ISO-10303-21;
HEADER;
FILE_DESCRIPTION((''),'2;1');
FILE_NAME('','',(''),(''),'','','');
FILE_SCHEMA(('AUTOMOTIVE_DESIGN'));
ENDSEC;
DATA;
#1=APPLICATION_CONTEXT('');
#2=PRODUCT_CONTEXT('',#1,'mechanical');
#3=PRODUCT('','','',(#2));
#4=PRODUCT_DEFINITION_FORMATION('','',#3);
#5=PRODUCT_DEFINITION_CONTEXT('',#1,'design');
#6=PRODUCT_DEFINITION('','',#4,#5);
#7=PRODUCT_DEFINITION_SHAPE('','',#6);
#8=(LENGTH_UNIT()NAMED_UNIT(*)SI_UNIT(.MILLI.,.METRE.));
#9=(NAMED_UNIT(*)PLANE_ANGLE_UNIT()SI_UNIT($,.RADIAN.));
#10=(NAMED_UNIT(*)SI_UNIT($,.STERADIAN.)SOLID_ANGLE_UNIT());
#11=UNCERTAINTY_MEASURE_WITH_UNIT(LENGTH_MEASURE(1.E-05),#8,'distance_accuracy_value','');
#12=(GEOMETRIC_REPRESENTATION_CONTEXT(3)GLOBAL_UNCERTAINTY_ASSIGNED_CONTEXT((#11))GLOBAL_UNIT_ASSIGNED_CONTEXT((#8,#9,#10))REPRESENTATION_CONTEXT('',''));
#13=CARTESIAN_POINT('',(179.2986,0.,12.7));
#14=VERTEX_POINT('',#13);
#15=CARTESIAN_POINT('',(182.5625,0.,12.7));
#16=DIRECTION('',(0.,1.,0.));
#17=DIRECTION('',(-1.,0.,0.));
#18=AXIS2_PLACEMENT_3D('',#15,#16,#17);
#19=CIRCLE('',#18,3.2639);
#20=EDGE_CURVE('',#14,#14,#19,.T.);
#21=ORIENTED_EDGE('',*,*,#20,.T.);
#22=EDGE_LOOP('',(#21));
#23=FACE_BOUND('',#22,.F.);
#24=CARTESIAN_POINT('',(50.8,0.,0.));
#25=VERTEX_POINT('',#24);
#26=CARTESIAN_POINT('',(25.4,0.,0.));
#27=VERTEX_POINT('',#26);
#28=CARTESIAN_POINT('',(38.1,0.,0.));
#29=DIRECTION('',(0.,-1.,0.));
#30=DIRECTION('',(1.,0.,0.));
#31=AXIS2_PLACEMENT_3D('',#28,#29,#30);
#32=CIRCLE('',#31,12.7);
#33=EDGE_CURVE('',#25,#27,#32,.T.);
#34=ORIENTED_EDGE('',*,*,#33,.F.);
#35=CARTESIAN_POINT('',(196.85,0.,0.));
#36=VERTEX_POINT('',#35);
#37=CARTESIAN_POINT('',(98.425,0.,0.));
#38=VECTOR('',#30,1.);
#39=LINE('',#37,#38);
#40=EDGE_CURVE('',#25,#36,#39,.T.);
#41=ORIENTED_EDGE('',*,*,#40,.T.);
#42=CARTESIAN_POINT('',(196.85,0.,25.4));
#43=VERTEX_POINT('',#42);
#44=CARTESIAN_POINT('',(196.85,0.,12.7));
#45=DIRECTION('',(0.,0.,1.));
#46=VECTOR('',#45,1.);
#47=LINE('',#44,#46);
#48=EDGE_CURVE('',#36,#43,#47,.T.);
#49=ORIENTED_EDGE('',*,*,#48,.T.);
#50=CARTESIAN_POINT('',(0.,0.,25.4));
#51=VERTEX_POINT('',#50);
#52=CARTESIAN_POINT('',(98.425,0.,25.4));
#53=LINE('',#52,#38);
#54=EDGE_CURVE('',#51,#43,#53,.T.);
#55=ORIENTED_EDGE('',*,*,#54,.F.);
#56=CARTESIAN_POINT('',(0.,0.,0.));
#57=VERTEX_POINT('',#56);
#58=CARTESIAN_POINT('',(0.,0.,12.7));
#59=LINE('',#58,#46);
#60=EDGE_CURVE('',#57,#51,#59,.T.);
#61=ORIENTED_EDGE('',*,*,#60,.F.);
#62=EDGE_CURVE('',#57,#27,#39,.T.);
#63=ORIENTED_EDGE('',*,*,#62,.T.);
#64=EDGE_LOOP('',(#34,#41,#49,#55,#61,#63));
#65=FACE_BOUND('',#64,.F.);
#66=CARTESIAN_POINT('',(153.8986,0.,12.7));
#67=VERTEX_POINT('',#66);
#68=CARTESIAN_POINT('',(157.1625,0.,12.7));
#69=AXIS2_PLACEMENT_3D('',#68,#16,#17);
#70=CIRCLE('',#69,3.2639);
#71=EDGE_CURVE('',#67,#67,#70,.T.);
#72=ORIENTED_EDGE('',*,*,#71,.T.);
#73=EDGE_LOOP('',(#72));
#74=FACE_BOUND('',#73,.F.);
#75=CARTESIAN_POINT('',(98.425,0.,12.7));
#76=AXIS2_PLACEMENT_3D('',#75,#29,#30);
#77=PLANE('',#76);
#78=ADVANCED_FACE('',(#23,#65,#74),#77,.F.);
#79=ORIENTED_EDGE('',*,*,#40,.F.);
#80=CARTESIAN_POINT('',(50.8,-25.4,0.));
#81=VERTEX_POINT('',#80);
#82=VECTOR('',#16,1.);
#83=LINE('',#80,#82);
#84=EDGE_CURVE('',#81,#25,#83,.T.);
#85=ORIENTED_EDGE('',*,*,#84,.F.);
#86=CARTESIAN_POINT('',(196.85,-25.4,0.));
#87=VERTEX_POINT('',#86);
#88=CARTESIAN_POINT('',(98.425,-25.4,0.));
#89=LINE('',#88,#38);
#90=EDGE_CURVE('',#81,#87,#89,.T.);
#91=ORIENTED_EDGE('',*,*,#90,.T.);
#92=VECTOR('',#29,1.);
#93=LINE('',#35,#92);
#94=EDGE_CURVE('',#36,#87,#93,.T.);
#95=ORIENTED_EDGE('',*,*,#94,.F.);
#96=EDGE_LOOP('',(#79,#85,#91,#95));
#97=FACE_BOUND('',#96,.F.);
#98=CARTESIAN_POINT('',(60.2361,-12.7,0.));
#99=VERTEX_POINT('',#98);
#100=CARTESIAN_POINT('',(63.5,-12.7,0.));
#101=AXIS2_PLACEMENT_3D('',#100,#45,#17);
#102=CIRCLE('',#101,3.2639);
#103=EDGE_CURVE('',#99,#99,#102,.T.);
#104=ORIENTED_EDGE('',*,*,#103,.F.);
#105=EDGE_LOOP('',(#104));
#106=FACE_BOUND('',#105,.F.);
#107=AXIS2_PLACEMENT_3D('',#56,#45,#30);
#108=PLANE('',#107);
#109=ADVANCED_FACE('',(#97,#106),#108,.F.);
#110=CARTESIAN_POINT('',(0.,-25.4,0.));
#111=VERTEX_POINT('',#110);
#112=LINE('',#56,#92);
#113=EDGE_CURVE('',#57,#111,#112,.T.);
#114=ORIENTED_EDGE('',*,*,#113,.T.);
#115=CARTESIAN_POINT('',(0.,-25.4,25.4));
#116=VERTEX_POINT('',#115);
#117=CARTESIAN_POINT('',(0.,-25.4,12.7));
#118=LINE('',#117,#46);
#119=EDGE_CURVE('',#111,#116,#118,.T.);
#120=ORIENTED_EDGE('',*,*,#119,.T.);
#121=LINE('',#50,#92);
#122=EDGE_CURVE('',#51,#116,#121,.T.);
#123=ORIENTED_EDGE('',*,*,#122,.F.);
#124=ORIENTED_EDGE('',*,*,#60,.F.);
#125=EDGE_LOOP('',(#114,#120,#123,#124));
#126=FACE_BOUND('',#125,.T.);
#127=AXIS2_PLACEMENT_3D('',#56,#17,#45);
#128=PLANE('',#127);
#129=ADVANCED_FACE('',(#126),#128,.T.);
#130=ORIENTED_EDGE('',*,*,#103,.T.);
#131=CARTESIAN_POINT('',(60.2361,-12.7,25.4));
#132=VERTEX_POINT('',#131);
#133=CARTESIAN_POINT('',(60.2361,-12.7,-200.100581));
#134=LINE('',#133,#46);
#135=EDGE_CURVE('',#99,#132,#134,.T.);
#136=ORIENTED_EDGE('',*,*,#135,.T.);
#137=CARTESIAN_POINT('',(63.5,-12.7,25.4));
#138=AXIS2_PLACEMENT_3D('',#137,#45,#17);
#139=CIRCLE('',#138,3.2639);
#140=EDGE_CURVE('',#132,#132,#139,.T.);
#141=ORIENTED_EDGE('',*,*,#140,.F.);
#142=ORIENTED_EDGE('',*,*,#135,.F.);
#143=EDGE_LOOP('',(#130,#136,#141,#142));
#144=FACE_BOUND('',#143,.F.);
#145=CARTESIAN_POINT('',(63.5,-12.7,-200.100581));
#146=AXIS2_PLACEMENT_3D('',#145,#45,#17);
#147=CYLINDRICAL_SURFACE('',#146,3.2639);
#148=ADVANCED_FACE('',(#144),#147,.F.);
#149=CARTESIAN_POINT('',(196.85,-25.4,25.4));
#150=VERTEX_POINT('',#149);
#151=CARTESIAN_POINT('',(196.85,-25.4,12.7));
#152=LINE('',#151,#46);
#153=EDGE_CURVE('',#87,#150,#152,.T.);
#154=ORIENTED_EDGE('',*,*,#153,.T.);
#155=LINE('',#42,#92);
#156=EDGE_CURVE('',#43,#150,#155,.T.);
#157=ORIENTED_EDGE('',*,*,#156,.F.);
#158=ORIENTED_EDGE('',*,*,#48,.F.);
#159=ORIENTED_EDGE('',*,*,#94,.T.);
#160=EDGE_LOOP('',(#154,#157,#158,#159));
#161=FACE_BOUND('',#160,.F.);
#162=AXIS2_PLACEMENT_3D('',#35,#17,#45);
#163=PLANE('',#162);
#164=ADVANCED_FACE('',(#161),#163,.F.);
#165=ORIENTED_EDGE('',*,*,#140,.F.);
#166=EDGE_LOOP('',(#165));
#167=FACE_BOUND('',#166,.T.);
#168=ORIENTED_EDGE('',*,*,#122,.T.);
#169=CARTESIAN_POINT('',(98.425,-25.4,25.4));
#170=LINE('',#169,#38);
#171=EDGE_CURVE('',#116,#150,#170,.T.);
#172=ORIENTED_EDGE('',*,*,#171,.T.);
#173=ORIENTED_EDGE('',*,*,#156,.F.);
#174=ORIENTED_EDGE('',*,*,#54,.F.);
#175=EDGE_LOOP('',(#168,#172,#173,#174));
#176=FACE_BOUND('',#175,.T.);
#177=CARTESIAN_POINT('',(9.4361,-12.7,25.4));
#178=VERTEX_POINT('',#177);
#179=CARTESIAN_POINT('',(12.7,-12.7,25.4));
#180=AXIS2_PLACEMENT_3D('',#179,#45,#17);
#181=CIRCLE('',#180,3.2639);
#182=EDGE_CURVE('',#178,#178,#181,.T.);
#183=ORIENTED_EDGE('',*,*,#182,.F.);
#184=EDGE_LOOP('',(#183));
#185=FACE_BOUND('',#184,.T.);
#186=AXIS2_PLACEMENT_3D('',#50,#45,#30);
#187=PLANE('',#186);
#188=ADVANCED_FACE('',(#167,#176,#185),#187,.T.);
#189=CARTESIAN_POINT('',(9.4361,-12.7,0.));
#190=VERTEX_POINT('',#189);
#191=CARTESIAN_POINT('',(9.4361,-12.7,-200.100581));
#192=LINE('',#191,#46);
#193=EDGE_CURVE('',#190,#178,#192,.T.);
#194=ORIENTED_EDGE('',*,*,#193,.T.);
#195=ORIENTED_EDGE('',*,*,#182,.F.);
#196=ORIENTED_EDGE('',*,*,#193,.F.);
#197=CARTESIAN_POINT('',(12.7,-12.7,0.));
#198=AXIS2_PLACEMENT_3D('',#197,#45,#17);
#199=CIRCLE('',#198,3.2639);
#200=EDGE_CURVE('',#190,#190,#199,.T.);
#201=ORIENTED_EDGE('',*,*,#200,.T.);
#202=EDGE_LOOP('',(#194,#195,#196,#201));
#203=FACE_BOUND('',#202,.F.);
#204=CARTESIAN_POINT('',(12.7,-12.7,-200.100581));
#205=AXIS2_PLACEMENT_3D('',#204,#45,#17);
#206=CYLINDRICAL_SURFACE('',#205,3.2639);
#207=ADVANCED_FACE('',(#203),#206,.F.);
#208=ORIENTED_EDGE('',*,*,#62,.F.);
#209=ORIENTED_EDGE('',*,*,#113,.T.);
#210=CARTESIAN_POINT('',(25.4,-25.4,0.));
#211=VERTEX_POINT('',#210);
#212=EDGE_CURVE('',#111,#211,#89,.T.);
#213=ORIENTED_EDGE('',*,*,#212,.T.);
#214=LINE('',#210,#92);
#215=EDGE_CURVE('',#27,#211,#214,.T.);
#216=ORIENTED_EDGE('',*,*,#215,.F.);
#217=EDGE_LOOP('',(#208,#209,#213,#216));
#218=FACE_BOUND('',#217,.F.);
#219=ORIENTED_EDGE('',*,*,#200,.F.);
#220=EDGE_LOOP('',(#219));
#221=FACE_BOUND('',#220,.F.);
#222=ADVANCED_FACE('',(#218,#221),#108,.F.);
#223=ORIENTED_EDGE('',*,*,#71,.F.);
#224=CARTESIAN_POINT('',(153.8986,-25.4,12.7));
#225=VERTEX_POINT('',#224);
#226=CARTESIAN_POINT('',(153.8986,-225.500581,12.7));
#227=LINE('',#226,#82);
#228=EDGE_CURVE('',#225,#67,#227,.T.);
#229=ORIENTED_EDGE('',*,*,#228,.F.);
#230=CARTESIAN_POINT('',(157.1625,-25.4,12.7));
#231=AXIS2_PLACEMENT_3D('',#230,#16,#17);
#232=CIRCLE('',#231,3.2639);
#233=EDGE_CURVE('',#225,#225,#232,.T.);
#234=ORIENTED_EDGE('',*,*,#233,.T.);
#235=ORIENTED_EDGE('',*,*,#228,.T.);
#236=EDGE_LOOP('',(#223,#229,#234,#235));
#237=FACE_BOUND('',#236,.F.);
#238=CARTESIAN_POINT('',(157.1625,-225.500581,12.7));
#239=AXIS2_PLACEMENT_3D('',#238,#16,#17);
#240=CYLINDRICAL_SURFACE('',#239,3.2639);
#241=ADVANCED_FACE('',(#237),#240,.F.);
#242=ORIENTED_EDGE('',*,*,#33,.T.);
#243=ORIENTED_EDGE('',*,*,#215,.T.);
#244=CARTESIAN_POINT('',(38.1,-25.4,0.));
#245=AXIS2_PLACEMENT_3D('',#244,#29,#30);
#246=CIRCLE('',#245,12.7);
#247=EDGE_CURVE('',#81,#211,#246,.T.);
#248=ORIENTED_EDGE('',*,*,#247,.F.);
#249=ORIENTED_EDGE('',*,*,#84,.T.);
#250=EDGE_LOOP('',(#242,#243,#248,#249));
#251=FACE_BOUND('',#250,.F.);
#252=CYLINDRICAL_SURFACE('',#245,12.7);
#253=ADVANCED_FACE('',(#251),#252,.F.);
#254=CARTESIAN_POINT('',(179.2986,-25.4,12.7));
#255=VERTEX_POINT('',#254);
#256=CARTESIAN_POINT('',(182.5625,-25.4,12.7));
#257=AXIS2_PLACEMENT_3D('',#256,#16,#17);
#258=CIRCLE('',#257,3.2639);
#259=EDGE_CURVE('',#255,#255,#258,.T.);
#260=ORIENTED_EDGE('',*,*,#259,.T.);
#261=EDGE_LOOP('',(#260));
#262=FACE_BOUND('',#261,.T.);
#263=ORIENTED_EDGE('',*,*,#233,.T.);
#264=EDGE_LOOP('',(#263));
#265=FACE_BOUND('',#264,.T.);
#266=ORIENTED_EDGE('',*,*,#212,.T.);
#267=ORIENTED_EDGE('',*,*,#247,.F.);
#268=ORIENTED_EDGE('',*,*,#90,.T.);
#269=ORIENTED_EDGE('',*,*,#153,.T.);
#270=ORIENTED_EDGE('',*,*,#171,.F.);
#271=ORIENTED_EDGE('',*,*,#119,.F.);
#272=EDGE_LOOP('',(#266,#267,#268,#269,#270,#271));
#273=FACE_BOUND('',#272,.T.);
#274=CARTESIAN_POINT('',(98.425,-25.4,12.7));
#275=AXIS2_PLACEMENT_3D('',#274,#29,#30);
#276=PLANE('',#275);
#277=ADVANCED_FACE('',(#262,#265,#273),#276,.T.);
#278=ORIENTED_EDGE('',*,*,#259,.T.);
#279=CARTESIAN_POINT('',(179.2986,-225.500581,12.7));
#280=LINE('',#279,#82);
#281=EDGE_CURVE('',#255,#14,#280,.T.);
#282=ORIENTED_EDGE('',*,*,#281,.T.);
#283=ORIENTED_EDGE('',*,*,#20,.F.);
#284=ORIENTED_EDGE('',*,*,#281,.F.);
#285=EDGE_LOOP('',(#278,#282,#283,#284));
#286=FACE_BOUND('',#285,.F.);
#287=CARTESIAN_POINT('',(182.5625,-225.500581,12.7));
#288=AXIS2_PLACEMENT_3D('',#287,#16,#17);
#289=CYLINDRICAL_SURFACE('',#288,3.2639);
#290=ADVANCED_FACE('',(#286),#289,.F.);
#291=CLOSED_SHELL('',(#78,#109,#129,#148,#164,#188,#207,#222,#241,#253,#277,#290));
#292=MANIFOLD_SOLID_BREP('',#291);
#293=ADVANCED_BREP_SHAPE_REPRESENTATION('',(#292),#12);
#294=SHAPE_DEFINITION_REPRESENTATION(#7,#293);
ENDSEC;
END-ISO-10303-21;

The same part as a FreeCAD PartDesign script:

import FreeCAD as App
import Part
import Sketcher
from FreeCAD import Vector
Q = App.Units.Quantity

doc = App.newDocument("Part")
body = doc.addObject("PartDesign::Body", "Body")

sketch1 = body.newObject("Sketcher::SketchObject", "Sketch")
sketch1.AttachmentSupport = (doc.getObject("XZ_Plane"), [""])
sketch1.MapMode = "FlatFace"
sketch1.addGeometry(Part.LineSegment(Vector(0, 25, 0), Vector(0, 0, 0)), False)
sketch1.addGeometry(Part.LineSegment(Vector(0, 0, 0), Vector(197, 0, 0)), False)
sketch1.addGeometry(Part.LineSegment(Vector(197, 0, 0), Vector(197, 25, 0)), False)
sketch1.addGeometry(Part.LineSegment(Vector(197, 25, 0), Vector(0, 25, 0)), False)
sketch1.addConstraint(Sketcher.Constraint("Coincident", 0, 2, 1, 1))
sketch1.addConstraint(Sketcher.Constraint("Coincident", 1, 2, 2, 1))
sketch1.addConstraint(Sketcher.Constraint("Coincident", 2, 2, 3, 1))
sketch1.addConstraint(Sketcher.Constraint("Coincident", 3, 2, 0, 1))
sketch1.addConstraint(Sketcher.Constraint("Vertical", 0))
sketch1.addConstraint(Sketcher.Constraint("Horizontal", 1))
sketch1.addConstraint(Sketcher.Constraint("Vertical", 2))
sketch1.addConstraint(Sketcher.Constraint("Horizontal", 3))
sketch1.addConstraint(Sketcher.Constraint("Coincident", 0, 2, -1, 1))
sketch1.addConstraint(Sketcher.Constraint("DistanceY", 0, 2, 0, 1, Q("1 in")))
sketch1.addConstraint(Sketcher.Constraint("DistanceX", 1, 1, 1, 2, Q("7.75 in")))
pad1 = body.newObject("PartDesign::Pad", "Pad")
pad1.Profile = sketch1
pad1.Length = Q("1 in")

sketch2 = body.newObject("Sketcher::SketchObject", "Sketch001")
sketch2.AttachmentSupport = (doc.getObject("XZ_Plane"), [""])
sketch2.MapMode = "FlatFace"
sketch2.AttachmentOffset = App.Placement(Vector(0, 0, 1 * 25.4), App.Rotation())
sketch2.addGeometry(Part.Circle(Vector(38, 0, 0), Vector(0, 0, 1), 13), False)
sketch2.addConstraint(Sketcher.Constraint("PointOnObject", 0, 3, -1))
sketch2.addConstraint(Sketcher.Constraint("Diameter", 0, Q("1 in")))
sketch2.addConstraint(Sketcher.Constraint("DistanceX", -1, 1, 0, 3, Q("1.5 in")))
pocket1 = body.newObject("PartDesign::Pocket", "Pocket")
pocket1.Profile = sketch2
pocket1.Length = Q("1 in")

sketch3 = body.newObject("Sketcher::SketchObject", "Sketch002")
sketch3.AttachmentSupport = (doc.getObject("XZ_Plane"), [""])
sketch3.MapMode = "FlatFace"
sketch3.AttachmentOffset = App.Placement(Vector(0, 0, 1 * 25.4), App.Rotation())
sketch3.addGeometry(Part.Circle(Vector(157.2, 12.7, 0), Vector(0, 0, 1), 3.3), False)
sketch3.addGeometry(Part.Circle(Vector(182.6, 12.7, 0), Vector(0, 0, 1), 3.3), False)
sketch3.addConstraint(Sketcher.Constraint("Equal", 0, 1))
sketch3.addConstraint(Sketcher.Constraint("Horizontal", 0, 3, 1, 3))
sketch3.addConstraint(Sketcher.Constraint("Diameter", 0, Q("0.257 in")))
sketch3.addConstraint(Sketcher.Constraint("DistanceX", 0, 3, 1, 3, Q("1 in")))
sketch3.addConstraint(Sketcher.Constraint("DistanceY", -1, 1, 0, 3, Q("0.5 in")))
sketch3.addConstraint(Sketcher.Constraint("DistanceX", -1, 1, 0, 3, Q("6.1875 in")))
doc.recompute()
hole = body.newObject("PartDesign::Hole", "Hole")
hole.Profile = sketch3
hole.ThreadType = "None"
hole.Diameter = Q("0.257 in")
hole.DepthType = "ThroughAll"

sketch4 = body.newObject("Sketcher::SketchObject", "Sketch003")
sketch4.AttachmentSupport = (doc.getObject("XY_Plane"), [""])
sketch4.MapMode = "FlatFace"
sketch4.addGeometry(Part.Circle(Vector(12.7, -12.7, 0), Vector(0, 0, 1), 3.3), False)
sketch4.addGeometry(Part.Circle(Vector(63.5, -12.7, 0), Vector(0, 0, 1), 3.3), False)
sketch4.addConstraint(Sketcher.Constraint("Equal", 0, 1))
sketch4.addConstraint(Sketcher.Constraint("Horizontal", 0, 3, 1, 3))
sketch4.addConstraint(Sketcher.Constraint("Diameter", 0, Q("0.257 in")))
sketch4.addConstraint(Sketcher.Constraint("DistanceX", 0, 3, 1, 3, Q("2 in")))
sketch4.addConstraint(Sketcher.Constraint("DistanceX", -1, 1, 0, 3, Q("0.5 in")))
sketch4.addConstraint(Sketcher.Constraint("DistanceY", 0, 3, -1, 1, Q("0.5 in")))
doc.recompute()
hole2 = body.newObject("PartDesign::Hole", "Hole001")
hole2.Profile = sketch4
hole2.ThreadType = "None"
hole2.Diameter = Q("0.257 in")
hole2.DepthType = "ThroughAll"
hole2.Reversed = True

doc.recompute()
